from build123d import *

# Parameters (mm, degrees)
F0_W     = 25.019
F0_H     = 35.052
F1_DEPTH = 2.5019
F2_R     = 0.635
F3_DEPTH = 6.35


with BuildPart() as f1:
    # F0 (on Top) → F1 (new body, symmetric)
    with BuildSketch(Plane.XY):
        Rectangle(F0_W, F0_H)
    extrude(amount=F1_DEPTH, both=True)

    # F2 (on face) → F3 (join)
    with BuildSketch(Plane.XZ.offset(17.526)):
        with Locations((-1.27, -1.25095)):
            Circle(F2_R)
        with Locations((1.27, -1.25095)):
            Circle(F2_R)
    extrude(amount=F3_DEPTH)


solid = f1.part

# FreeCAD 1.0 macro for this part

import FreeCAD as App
import Part
import Sketcher
from FreeCAD import Vector
Q = App.Units.Quantity

doc = App.newDocument("Part")
body = doc.addObject("PartDesign::Body", "Body")

# Sketch on XY plane
sketch1 = doc.addObject("Sketcher::SketchObject", "Sketch")
body.addObject(sketch1)
sketch1.AttachmentSupport = (doc.XY_Plane, [""])
sketch1.MapMode = "FlatFace"
sketch1.addGeometry([
    Part.LineSegment(Vector(-13, 18, 0), Vector(-13, -18, 0)),
    Part.LineSegment(Vector(-13, -18, 0), Vector(13, -18, 0)),
    Part.LineSegment(Vector(13, -18, 0), Vector(13, 18, 0)),
    Part.LineSegment(Vector(13, 18, 0), Vector(-13, 18, 0)),
], False)
sketch1.addConstraint([
    Sketcher.Constraint("Coincident", 0, 2, 1, 1),
    Sketcher.Constraint("Coincident", 1, 2, 2, 1),
    Sketcher.Constraint("Coincident", 2, 2, 3, 1),
    Sketcher.Constraint("Coincident", 3, 2, 0, 1),
    Sketcher.Constraint("Vertical", 0),
    Sketcher.Constraint("Horizontal", 1),
    Sketcher.Constraint("Vertical", 2),
    Sketcher.Constraint("Horizontal", 3),
    Sketcher.Constraint("Symmetric", 0, 2, 2, 2, -1, 1),
    Sketcher.Constraint("DistanceY", 0, 2, 0, 1, Q("1.38 in")),
    Sketcher.Constraint("DistanceX", 1, 1, 1, 2, Q("0.985 in")),
])
pad1 = doc.addObject("PartDesign::Pad", "Pad")
body.addObject(pad1)
pad1.Profile = sketch1
pad1.Length = Q("0.197 in")
pad1.Midplane = True

# Sketch on XZ plane
sketch2 = doc.addObject("Sketcher::SketchObject", "Sketch001")
body.addObject(sketch2)
sketch2.AttachmentSupport = (doc.XZ_Plane, [""])
sketch2.MapMode = "FlatFace"
sketch2.AttachmentOffset = App.Placement(Vector(0, 0, 0.69 * 25.4), App.Rotation())
sketch2.addGeometry([
    Part.Circle(Vector(-1.3, -1.3, 0), Vector(0, 0, 1), 0.6),
    Part.Circle(Vector(1.3, -1.3, 0), Vector(0, 0, 1), 0.6),
], False)
sketch2.addConstraint([
    Sketcher.Constraint("Equal", 0, 1),
    Sketcher.Constraint("Symmetric", 0, 3, 1, 3, -2),
    Sketcher.Constraint("Diameter", 0, Q("0.05 in")),
    Sketcher.Constraint("DistanceX", 0, 3, 1, 3, Q("0.1 in")),
    Sketcher.Constraint("DistanceY", 0, 3, -1, 1, 1.25095),
])
pad2 = doc.addObject("PartDesign::Pad", "Pad001")
body.addObject(pad2)
pad2.Profile = sketch2
pad2.Length = Q("0.25 in")

doc.recompute()
